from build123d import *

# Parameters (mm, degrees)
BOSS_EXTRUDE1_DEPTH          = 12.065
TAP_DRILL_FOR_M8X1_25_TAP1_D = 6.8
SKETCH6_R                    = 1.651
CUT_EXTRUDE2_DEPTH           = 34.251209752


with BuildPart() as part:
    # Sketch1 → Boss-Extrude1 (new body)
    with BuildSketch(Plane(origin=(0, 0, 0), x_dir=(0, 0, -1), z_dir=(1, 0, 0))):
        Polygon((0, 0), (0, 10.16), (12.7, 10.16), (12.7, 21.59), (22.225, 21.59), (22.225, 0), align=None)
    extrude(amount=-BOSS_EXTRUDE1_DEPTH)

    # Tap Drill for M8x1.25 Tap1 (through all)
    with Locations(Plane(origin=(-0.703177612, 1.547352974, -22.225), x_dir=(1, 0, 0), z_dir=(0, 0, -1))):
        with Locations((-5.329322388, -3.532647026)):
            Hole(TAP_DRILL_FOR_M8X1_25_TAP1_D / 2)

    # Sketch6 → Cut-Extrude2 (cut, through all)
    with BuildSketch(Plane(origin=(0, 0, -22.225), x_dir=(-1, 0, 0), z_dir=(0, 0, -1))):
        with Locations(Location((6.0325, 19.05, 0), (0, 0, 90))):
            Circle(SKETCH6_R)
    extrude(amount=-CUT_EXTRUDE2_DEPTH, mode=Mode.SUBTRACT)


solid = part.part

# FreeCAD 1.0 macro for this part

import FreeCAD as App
import Part
import Sketcher

V = App.Vector
Q = App.Units.Quantity

doc = App.newDocument("Part")
body = doc.addObject("PartDesign::Body", "Body")

# Sketch on YZ plane
sketch1 = body.newObject("Sketcher::SketchObject", "Sketch")
sketch1.AttachmentSupport = (doc.getObject("YZ_Plane"), [""])
sketch1.MapMode = "FlatFace"
sketch1.addGeometry(Part.LineSegment(V(10, 0, 0), V(0, 0, 0)), False)
sketch1.addGeometry(Part.LineSegment(V(0, 0, 0), V(0, -22, 0)), False)
sketch1.addGeometry(Part.LineSegment(V(0, -22, 0), V(22, -22, 0)), False)
sketch1.addGeometry(Part.LineSegment(V(22, -22, 0), V(22, -13, 0)), False)
sketch1.addGeometry(Part.LineSegment(V(22, -13, 0), V(10, -13, 0)), False)
sketch1.addGeometry(Part.LineSegment(V(10, -13, 0), V(10, 0, 0)), False)
sketch1.addConstraint(Sketcher.Constraint("Coincident", 0, 2, 1, 1))
sketch1.addConstraint(Sketcher.Constraint("Coincident", 1, 2, 2, 1))
sketch1.addConstraint(Sketcher.Constraint("Coincident", 2, 2, 3, 1))
sketch1.addConstraint(Sketcher.Constraint("Coincident", 3, 2, 4, 1))
sketch1.addConstraint(Sketcher.Constraint("Coincident", 4, 2, 5, 1))
sketch1.addConstraint(Sketcher.Constraint("Coincident", 5, 2, 0, 1))
sketch1.addConstraint(Sketcher.Constraint("Horizontal", 0))
sketch1.addConstraint(Sketcher.Constraint("Vertical", 1))
sketch1.addConstraint(Sketcher.Constraint("Horizontal", 2))
sketch1.addConstraint(Sketcher.Constraint("Vertical", 3))
sketch1.addConstraint(Sketcher.Constraint("Horizontal", 4))
sketch1.addConstraint(Sketcher.Constraint("Vertical", 5))
sketch1.addConstraint(Sketcher.Constraint("Coincident", 0, 2, -1, 1))
sketch1.addConstraint(Sketcher.Constraint("DistanceX", 0, 2, 0, 1, Q("0.4 in")))
sketch1.addConstraint(Sketcher.Constraint("DistanceY", 5, 1, 5, 2, Q("0.5 in")))
sketch1.addConstraint(Sketcher.Constraint("DistanceX", 2, 1, 2, 2, Q("0.85 in")))
sketch1.addConstraint(Sketcher.Constraint("DistanceY", 1, 2, 1, 1, Q("0.875 in")))
pad1 = body.newObject("PartDesign::Pad", "Pad")
pad1.Profile = sketch1
pad1.Length = Q("0.475 in")
pad1.Reversed = True

# Sketch on XY plane
sketch2 = body.newObject("Sketcher::SketchObject", "Sketch001")
sketch2.AttachmentSupport = (doc.getObject("XY_Plane"), [""])
sketch2.MapMode = "FlatFace"
sketch2.AttachmentOffset = App.Placement(V(0, 0, -0.875 * 25.4), App.Rotation())
sketch2.addGeometry(Part.Circle(V(-6, 5.1, 0), V(0, 0, 1), 3.4), False)
sketch2.addConstraint(Sketcher.Constraint("DistanceY", -1, 1, 0, 3, Q("0.2 in")))
sketch2.addConstraint(Sketcher.Constraint("Diameter", 0, Q("6.8 mm")))
sketch2.addConstraint(Sketcher.Constraint("DistanceX", 0, 3, -1, 1, Q("0.2375 in")))
doc.recompute()
hole = body.newObject("PartDesign::Hole", "Hole")
hole.Profile = sketch2
hole.ThreadType = "None"
hole.Diameter = 6.8
hole.DepthType = "ThroughAll"
hole.Reversed = True

# Sketch on XY plane
sketch3 = body.newObject("Sketcher::SketchObject", "Sketch002")
sketch3.AttachmentSupport = (doc.getObject("XY_Plane"), [""])
sketch3.MapMode = "FlatFace"
sketch3.AttachmentOffset = App.Placement(V(0, 0, -0.875 * 25.4), App.Rotation())
sketch3.addGeometry(Part.Circle(V(-6, 19.1, 0), V(0, 0, 1), 1.7), False)
sketch3.addConstraint(Sketcher.Constraint("Diameter", 0, Q("0.13 in")))
sketch3.addConstraint(Sketcher.Constraint("DistanceY", -1, 1, 0, 3, Q("0.75 in")))
sketch3.addConstraint(Sketcher.Constraint("DistanceX", 0, 3, -1, 1, Q("0.2375 in")))
pocket1 = body.newObject("PartDesign::Pocket", "Pocket")
pocket1.Profile = sketch3
pocket1.Type = "ThroughAll"
pocket1.Reversed = True

doc.recompute()
